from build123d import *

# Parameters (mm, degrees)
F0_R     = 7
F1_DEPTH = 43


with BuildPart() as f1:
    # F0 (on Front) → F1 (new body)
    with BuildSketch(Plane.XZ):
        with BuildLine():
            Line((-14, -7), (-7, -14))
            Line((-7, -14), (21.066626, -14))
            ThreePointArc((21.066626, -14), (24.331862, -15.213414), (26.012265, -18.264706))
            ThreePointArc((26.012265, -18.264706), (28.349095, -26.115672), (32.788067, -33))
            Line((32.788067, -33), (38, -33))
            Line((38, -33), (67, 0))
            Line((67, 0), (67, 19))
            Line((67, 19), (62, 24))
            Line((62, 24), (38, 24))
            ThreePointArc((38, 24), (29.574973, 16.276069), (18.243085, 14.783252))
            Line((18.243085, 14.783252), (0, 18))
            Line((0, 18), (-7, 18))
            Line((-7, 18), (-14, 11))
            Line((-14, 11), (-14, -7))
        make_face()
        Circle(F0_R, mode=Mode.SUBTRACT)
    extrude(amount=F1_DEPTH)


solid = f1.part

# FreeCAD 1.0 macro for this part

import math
import FreeCAD as App
import Part
import Sketcher
from FreeCAD import Vector
Q = App.Units.Quantity

doc = App.newDocument("Part")
body = doc.addObject("PartDesign::Body", "Body")

sketch1 = doc.addObject("Sketcher::SketchObject", "Sketch")
body.addObject(sketch1)
sketch1.AttachmentSupport = (doc.XZ_Plane, [""])
sketch1.MapMode = "FlatFace"
sketch1.addGeometry([
    Part.LineSegment(Vector(-14, -7, 0), Vector(-7, -14, 0)),
    Part.LineSegment(Vector(-7, -14, 0), Vector(21.066626, -14, 0)),
    Part.ArcOfCircle(Part.Circle(Vector(21.066626, -19.000001, 0), Vector(0, 0, 1), 5.000001), math.radians(8.456524), math.radians(89.999997)),
    Part.ArcOfCircle(Part.Circle(Vector(54.69697, -14, 0), Vector(0, 0, 1), 29), math.radians(-171.543481), math.radians(-139.067277)),
    Part.LineSegment(Vector(32.788067, -33, 0), Vector(38, -33, 0)),
    Part.LineSegment(Vector(38, -33, 0), Vector(67, 0, 0)),
    Part.LineSegment(Vector(67, 0, 0), Vector(67, 19, 0)),
    Part.LineSegment(Vector(67, 19, 0), Vector(62, 24, 0)),
    Part.LineSegment(Vector(62, 24, 0), Vector(38, 24, 0)),
    Part.ArcOfCircle(Part.Circle(Vector(21.542401, 33.494598, 0), Vector(0, 0, 1), 18.999999), math.radians(-100.000002), math.radians(-29.981194)),
    Part.LineSegment(Vector(18.243085, 14.783252, 0), Vector(0, 18, 0)),
    Part.LineSegment(Vector(0, 18, 0), Vector(-7, 18, 0)),
    Part.LineSegment(Vector(-7, 18, 0), Vector(-14, 11, 0)),
    Part.LineSegment(Vector(-14, 11, 0), Vector(-14, -7, 0)),
    Part.Circle(Vector(0, 0, 0), Vector(0, 0, 1), 7),
], False)
sketch1.addConstraint([
    Sketcher.Constraint("Coincident", 0, 2, 1, 1),
    Sketcher.Constraint("Tangent", 1, 2, 2, 2),
    Sketcher.Constraint("Tangent", 2, 1, 3, 1),
    Sketcher.Constraint("Coincident", 3, 2, 4, 1),
    Sketcher.Constraint("Coincident", 4, 2, 5, 1),
    Sketcher.Constraint("Coincident", 5, 2, 6, 1),
    Sketcher.Constraint("Coincident", 6, 2, 7, 1),
    Sketcher.Constraint("Coincident", 7, 2, 8, 1),
    Sketcher.Constraint("Coincident", 8, 2, 9, 2),
    Sketcher.Constraint("Tangent", 9, 1, 10, 1),
    Sketcher.Constraint("Coincident", 10, 2, 11, 1),
    Sketcher.Constraint("Coincident", 11, 2, 12, 1),
    Sketcher.Constraint("Coincident", 12, 2, 13, 1),
    Sketcher.Constraint("Coincident", 13, 2, 0, 1),
    Sketcher.Constraint("Horizontal", 1),
    Sketcher.Constraint("Horizontal", 4),
    Sketcher.Constraint("Vertical", 6),
    Sketcher.Constraint("Horizontal", 8),
    Sketcher.Constraint("Horizontal", 11),
    Sketcher.Constraint("Vertical", 13),
    Sketcher.Constraint("Coincident", 14, 3, -1, 1),
    Sketcher.Constraint("PointOnObject", 5, 2, -1),
    Sketcher.Constraint("PointOnObject", 10, 2, -2),
    Sketcher.Constraint("Parallel", 0, 7),
    Sketcher.Constraint("Perpendicular", 7, 12),
    Sketcher.Constraint("Horizontal", 3, 3, 0, 2),
    Sketcher.Constraint("Vertical", 4, 2, 8, 2),
    Sketcher.Constraint("Vertical", 0, 2, 11, 2),
    Sketcher.Constraint("Equal", 0, 12),
    Sketcher.Constraint("Diameter", 14, 14.0),
    Sketcher.Constraint("Radius", 2, 5.000001),
    Sketcher.Constraint("Radius", 3, 29.0),
    Sketcher.Constraint("Radius", 9, 18.999999),
    Sketcher.Constraint("DistanceX", 8, 2, 8, 1, 24.0),
    Sketcher.Constraint("DistanceX", 11, 2, 11, 1, 7.0),
    Sketcher.Constraint("DistanceY", 6, 1, 6, 2, 19.0),
    Sketcher.Constraint("DistanceY", 13, 2, 13, 1, 18.0),
    Sketcher.Constraint("Angle", 10, Q("170 deg")),
    Sketcher.Constraint("DistanceY", 2, 3, -1, 1, 19.000001),
    Sketcher.Constraint("DistanceY", 3, 2, -1, 1, 33.0),
    Sketcher.Constraint("DistanceX", -1, 1, 4, 2, 38.0),
    Sketcher.Constraint("DistanceX", -1, 1, 5, 2, 67.0),
    Sketcher.Constraint("DistanceY", -1, 1, 10, 2, 18.0),
    Sketcher.Constraint("DistanceX", 1, 1, 1, 2, 28.066626),
])
pad1 = doc.addObject("PartDesign::Pad", "Pad")
body.addObject(pad1)
pad1.Profile = sketch1
pad1.Length = 43

doc.recompute()
